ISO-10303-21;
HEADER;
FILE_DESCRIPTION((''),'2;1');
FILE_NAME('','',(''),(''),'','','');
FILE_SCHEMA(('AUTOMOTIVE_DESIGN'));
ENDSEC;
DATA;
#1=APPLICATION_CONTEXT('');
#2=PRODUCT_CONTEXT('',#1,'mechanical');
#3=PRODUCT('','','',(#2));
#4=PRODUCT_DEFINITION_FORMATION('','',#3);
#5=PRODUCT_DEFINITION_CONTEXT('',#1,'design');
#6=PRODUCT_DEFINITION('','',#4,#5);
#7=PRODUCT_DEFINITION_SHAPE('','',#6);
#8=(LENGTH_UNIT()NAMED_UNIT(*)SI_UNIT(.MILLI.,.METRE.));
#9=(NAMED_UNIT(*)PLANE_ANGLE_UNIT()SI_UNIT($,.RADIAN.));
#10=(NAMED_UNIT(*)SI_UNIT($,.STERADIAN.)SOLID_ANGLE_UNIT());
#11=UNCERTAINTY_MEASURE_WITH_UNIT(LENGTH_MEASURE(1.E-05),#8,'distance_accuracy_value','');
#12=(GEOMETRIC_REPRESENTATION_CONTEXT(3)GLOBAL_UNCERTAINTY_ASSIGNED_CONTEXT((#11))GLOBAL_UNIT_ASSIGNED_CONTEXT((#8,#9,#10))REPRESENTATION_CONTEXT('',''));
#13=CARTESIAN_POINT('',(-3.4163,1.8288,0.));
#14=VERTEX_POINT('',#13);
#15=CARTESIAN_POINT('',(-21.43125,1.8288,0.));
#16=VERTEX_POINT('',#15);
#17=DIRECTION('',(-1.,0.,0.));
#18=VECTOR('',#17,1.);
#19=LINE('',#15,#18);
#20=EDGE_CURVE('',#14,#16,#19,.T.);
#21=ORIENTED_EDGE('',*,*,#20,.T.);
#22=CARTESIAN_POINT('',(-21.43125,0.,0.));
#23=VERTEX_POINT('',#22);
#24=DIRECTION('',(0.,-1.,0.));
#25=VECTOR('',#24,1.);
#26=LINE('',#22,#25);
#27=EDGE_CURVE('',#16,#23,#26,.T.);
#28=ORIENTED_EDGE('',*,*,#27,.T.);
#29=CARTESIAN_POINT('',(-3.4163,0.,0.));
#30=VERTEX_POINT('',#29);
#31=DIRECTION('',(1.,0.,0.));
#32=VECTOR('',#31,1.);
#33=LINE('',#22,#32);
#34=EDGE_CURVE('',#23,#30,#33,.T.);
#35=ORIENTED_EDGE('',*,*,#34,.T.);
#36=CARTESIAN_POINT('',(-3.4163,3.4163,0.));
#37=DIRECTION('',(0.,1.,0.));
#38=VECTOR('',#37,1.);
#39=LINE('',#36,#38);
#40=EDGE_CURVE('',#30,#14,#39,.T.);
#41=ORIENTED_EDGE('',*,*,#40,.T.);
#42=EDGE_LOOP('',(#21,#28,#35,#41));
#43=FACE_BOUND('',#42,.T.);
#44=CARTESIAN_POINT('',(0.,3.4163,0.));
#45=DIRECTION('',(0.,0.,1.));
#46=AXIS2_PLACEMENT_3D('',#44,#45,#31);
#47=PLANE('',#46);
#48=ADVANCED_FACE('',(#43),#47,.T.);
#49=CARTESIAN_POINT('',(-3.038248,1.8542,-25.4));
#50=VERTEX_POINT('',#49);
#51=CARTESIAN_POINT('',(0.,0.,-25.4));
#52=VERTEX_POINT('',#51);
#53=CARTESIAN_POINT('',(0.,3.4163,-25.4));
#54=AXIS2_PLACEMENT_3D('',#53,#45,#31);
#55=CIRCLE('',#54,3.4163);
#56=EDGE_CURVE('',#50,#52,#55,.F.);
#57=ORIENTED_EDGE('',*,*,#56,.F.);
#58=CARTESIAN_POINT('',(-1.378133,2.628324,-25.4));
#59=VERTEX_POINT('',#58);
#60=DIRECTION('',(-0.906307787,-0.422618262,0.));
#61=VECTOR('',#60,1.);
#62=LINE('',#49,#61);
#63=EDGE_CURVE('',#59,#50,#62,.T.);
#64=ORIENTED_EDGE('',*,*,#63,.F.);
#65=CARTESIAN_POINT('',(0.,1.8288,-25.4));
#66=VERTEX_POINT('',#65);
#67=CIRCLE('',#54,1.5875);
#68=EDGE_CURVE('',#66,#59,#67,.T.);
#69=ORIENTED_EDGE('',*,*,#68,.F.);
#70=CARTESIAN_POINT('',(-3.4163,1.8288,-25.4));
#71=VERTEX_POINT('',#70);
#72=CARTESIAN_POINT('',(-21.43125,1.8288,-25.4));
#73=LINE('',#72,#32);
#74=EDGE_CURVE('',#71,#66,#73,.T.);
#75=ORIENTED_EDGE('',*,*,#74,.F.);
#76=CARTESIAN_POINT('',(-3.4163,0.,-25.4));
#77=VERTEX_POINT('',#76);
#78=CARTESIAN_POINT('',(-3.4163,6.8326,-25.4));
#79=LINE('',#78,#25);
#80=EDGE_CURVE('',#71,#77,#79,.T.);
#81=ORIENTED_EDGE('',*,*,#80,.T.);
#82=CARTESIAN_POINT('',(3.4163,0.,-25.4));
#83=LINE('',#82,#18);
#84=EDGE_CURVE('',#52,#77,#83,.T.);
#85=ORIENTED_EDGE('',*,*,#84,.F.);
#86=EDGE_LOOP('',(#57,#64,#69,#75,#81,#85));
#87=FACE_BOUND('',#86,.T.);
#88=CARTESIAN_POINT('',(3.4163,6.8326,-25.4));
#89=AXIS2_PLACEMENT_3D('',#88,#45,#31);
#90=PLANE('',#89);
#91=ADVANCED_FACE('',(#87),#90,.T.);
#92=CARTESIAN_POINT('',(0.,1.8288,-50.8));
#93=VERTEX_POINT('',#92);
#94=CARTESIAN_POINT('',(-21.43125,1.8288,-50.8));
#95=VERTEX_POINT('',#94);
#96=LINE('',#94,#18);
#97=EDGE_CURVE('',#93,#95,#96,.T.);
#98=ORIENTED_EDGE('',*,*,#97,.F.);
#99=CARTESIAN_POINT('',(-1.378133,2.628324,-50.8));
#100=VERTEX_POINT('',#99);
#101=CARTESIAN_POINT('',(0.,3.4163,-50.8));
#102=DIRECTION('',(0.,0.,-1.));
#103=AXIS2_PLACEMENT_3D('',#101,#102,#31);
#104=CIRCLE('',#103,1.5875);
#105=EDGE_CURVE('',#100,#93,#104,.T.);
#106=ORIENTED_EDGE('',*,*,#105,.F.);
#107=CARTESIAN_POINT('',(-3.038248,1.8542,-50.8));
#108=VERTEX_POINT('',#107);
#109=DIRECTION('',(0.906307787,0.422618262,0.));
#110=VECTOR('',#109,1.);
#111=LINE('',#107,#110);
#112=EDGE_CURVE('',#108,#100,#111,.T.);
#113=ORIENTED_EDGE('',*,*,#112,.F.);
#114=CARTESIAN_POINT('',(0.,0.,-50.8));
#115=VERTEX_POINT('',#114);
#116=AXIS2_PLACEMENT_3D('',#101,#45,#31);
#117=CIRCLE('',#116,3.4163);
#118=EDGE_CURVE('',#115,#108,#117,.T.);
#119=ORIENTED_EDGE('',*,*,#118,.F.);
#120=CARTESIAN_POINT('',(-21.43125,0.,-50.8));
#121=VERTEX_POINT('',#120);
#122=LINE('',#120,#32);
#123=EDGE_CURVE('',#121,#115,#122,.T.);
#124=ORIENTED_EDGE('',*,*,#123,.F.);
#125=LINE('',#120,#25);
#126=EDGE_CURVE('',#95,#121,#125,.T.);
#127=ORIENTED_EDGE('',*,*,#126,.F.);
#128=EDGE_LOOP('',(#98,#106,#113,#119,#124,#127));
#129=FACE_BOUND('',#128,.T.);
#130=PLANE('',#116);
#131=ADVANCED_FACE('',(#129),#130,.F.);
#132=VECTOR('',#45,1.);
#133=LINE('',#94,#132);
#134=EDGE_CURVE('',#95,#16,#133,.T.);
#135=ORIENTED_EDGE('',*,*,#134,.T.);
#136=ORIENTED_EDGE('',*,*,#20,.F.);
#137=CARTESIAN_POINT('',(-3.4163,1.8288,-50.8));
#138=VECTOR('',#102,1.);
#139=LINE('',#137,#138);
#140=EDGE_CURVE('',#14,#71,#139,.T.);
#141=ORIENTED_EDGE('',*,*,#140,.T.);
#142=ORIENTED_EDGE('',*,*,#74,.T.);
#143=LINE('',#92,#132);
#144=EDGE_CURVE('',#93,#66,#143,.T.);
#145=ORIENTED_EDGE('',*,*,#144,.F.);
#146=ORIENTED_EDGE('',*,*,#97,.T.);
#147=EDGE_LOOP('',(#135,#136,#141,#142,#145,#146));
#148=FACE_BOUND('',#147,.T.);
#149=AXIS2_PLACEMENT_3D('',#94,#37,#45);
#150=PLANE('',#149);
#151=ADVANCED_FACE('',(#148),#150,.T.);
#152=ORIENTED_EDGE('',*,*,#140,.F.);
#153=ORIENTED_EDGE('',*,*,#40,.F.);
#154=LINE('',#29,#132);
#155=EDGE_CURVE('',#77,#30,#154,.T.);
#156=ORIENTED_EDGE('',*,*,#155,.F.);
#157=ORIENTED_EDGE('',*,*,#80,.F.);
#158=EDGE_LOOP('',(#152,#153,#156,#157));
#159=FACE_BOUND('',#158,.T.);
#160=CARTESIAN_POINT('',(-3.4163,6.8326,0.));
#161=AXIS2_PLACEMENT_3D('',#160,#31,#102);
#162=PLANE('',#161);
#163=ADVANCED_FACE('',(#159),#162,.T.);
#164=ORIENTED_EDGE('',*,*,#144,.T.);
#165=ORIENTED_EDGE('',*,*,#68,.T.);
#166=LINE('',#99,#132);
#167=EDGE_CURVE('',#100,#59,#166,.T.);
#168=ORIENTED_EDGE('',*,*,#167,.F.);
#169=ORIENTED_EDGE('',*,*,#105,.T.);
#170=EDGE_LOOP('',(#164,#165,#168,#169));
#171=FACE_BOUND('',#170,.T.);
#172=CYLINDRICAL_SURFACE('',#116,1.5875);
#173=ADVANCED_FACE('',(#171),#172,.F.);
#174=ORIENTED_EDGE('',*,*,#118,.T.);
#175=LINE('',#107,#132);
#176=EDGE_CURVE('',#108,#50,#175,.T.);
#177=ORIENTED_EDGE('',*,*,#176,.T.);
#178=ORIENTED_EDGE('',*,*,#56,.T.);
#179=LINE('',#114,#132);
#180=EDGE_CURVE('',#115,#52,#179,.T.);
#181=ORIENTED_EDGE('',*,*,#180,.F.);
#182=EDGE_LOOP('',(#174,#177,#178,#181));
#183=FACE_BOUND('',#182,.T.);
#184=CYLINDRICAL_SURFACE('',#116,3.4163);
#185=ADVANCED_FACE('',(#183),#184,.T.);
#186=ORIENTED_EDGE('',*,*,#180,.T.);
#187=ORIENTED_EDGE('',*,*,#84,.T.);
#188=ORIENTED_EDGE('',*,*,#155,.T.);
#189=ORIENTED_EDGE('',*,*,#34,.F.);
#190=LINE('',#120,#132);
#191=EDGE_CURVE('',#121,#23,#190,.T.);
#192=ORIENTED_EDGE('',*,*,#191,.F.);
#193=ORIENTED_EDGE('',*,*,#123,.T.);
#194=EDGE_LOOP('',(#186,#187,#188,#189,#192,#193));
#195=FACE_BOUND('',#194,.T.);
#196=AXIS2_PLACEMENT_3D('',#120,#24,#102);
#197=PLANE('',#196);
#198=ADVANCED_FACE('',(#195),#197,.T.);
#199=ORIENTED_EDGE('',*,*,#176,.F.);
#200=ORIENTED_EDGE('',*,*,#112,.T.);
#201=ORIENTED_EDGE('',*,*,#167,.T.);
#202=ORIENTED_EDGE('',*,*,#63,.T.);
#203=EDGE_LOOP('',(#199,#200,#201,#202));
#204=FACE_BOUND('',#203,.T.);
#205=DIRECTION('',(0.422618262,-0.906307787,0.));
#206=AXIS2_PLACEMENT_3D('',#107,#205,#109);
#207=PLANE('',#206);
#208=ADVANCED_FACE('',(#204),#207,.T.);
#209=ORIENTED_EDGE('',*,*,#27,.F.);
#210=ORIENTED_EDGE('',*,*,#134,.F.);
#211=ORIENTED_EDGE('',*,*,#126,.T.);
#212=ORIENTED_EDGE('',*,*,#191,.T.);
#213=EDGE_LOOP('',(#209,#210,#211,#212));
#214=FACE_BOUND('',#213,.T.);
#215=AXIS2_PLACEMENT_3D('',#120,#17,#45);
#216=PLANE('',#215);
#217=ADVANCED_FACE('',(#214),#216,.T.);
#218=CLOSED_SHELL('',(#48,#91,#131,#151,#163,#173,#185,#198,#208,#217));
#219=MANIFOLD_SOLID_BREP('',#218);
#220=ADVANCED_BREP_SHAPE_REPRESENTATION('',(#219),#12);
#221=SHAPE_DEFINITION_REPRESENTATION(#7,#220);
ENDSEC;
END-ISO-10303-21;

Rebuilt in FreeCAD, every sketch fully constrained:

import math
import FreeCAD as App
import Part
import Sketcher
from FreeCAD import Vector
Q = App.Units.Quantity


def add_polygon(sketch, points):
    """Adds a closed chain of lines whose ends are joined by coincident constraints."""
    first, n = sketch.GeometryCount, len(points)
    for a, b in zip(points, points[1:] + points[:1]):
        sketch.addGeometry(Part.LineSegment(App.Vector(*a, 0), App.Vector(*b, 0)), False)
    for i in range(n):
        sketch.addConstraint(Sketcher.Constraint("Coincident", first + i, 2, first + (i + 1) % n, 1))

doc = App.newDocument("Part")
body = doc.addObject("PartDesign::Body", "Body")

# Sketch on XY plane
sketch1 = doc.addObject("Sketcher::SketchObject", "Sketch")
body.addObject(sketch1)
sketch1.AttachmentSupport = (doc.XY_Plane, [""])
sketch1.MapMode = "FlatFace"
sketch1.addGeometry([
    Part.LineSegment(Vector(-21.4, 0, 0), Vector(0, 0, 0)),  # 0
    Part.ArcOfCircle(Part.Circle(Vector(0, 3.4, 0), Vector(0, 0, 1), 3.4), math.radians(-90), math.radians(207)),  # 1
    Part.LineSegment(Vector(-3, 1.9, 0), Vector(-1.4, 2.6, 0)),  # 2
    Part.ArcOfCircle(Part.Circle(Vector(0, 3.4, 0), Vector(0, 0, 1), 1.6), math.radians(-90), math.radians(210)),  # 3
    Part.LineSegment(Vector(0, 1.8, 0), Vector(-21.4, 1.8, 0)),  # 4
    Part.LineSegment(Vector(-21.4, 1.8, 0), Vector(-21.4, 0, 0)),  # 5
], False)
sketch1.addConstraint([
    Sketcher.Constraint("Tangent", 0, 2, 1, 1),
    Sketcher.Constraint("Coincident", 1, 2, 2, 1),
    Sketcher.Constraint("Coincident", 2, 2, 3, 2),
    Sketcher.Constraint("Tangent", 3, 1, 4, 1),
    Sketcher.Constraint("Coincident", 4, 2, 5, 1),
    Sketcher.Constraint("Coincident", 5, 2, 0, 1),
    Sketcher.Constraint("Horizontal", 0),
    Sketcher.Constraint("Horizontal", 4),
    Sketcher.Constraint("Vertical", 5),
    Sketcher.Constraint("Coincident", 0, 2, -1, 1),
    Sketcher.Constraint("Coincident", 3, 3, 1, 3),
    Sketcher.Constraint("Angle", 2, Q("25 deg")),
    Sketcher.Constraint("Radius", 3, Q("0.0625 in")),
    Sketcher.Constraint("Radius", 1, Q("0.1345 in")),
    Sketcher.Constraint("DistanceX", 0, 1, 0, 2, Q("0.84375 in")),
    Sketcher.Constraint("DistanceY", -1, 1, 1, 2, Q("0.073 in")),
])
pad1 = doc.addObject("PartDesign::Pad", "Pad")
body.addObject(pad1)
pad1.Profile = sketch1
pad1.Length = Q("2 in")
pad1.Reversed = True

# Sketch on XZ plane
sketch2 = doc.addObject("Sketcher::SketchObject", "Sketch001")
body.addObject(sketch2)
sketch2.AttachmentSupport = (doc.XZ_Plane, [""])
sketch2.MapMode = "FlatFace"
add_polygon(sketch2, [(-3, -25), (-3, 0), (3, 0), (3, -25)])  # lines 0-3
sketch2.addConstraint([
    Sketcher.Constraint("Vertical", 0),
    Sketcher.Constraint("Horizontal", 1),
    Sketcher.Constraint("Vertical", 2),
    Sketcher.Constraint("Horizontal", 3),
    Sketcher.Constraint("Symmetric", 0, 2, 1, 2, -1, 1),
    Sketcher.Constraint("DistanceY", 0, 1, 0, 2, Q("1 in")),
    Sketcher.Constraint("DistanceX", 1, 1, 1, 2, Q("0.269 in")),
])
pocket1 = doc.addObject("PartDesign::Pocket", "Pocket")
body.addObject(pocket1)
pocket1.Profile = sketch2
pocket1.Type = "ThroughAll"

doc.recompute()
